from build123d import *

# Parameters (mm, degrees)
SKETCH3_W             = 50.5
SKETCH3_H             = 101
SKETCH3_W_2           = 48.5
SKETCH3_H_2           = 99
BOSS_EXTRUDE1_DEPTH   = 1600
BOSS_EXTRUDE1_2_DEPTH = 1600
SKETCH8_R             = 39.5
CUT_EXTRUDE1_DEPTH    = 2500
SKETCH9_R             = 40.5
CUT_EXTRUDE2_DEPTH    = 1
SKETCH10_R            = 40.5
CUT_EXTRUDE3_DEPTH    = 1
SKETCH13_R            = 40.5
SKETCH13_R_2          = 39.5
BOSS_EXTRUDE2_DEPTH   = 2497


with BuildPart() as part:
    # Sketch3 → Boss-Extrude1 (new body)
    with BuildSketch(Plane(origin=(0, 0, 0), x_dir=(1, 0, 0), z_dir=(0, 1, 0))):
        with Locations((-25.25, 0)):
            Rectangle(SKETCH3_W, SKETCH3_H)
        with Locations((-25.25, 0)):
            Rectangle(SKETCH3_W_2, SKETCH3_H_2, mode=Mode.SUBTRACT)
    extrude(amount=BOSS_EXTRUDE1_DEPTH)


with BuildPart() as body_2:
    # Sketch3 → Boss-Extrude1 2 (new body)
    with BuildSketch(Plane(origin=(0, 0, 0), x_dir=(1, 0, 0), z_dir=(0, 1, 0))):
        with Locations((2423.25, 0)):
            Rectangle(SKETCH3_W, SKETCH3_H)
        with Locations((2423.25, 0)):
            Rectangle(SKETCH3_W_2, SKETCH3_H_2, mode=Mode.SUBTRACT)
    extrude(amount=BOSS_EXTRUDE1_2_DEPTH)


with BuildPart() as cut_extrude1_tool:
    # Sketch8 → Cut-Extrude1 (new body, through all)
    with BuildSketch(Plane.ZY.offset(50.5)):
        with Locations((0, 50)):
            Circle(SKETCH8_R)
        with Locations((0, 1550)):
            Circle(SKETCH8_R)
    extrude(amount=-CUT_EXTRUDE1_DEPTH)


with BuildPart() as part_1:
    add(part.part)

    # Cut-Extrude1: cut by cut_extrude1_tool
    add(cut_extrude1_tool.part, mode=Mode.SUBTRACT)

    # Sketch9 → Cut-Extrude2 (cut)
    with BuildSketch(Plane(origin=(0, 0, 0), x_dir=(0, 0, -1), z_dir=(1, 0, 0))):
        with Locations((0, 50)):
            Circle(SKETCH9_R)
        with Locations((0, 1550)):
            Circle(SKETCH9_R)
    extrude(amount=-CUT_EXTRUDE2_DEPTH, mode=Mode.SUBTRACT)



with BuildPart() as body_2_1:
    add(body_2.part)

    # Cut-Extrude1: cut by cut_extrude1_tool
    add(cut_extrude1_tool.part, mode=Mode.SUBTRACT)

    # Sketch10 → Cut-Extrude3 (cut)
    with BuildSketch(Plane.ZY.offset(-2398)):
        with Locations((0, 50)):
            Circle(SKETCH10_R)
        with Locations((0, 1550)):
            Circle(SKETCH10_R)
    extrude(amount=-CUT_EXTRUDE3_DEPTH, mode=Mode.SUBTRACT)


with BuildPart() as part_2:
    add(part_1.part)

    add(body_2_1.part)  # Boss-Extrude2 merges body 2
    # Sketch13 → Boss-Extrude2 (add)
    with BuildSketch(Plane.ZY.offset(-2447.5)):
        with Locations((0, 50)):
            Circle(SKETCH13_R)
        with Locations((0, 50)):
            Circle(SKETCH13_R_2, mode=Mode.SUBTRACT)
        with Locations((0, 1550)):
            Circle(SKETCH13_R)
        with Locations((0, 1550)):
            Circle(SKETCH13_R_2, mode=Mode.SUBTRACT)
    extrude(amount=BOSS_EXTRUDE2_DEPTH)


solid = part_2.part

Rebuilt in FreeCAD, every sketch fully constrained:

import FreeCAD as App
import Part
import Sketcher

V = App.Vector


def add_polygon(sketch, points):
    """Adds a closed chain of lines whose ends are joined by coincident constraints."""
    first, n = sketch.GeometryCount, len(points)
    for a, b in zip(points, points[1:] + points[:1]):
        sketch.addGeometry(Part.LineSegment(App.Vector(*a, 0), App.Vector(*b, 0)), False)
    for i in range(n):
        sketch.addConstraint(Sketcher.Constraint("Coincident", first + i, 2, first + (i + 1) % n, 1))

doc = App.newDocument("Part")
params = doc.addObject("Spreadsheet::Sheet", "Params")
for row, (alias, value) in enumerate([
    ("sketch1_height", "101 mm"),
    ("sketch1_height2", "99 mm"),
    ("sketch1_width", "50.5 mm"),
    ("sketch1_width2", "48.5 mm"),
    ("pad1_length", "1600 mm"),
    ("sketch2_height", "101 mm"),
    ("sketch2_height2", "99 mm"),
    ("sketch2_width", "50.5 mm"),
    ("sketch2_width2", "48.5 mm"),
    ("pad2_length", "1600 mm"),
    ("sketch3_diameter", "79 mm"),
    ("pad3_length", "2500 mm"),
    ("sketch4_diameter", "81 mm"),
    ("pocket1_length", "1 mm"),
    ("sketch5_diameter", "81 mm"),
    ("pocket2_length", "1 mm"),
    ("sketch6_diameter", "81 mm"),
    ("sketch6_diameter2", "79 mm"),
    ("pad4_length", "2497 mm"),
], start=1):
    params.set(f"A{row}", alias)
    params.set(f"B{row}", "=" + value)
    params.setAlias(f"B{row}", alias)

body = doc.addObject("PartDesign::Body", "Body")

sketch1 = doc.addObject("Sketcher::SketchObject", "Sketch")
body.addObject(sketch1)
sketch1.AttachmentSupport = (doc.XZ_Plane, [""])
sketch1.MapMode = "FlatFace"
add_polygon(sketch1, [(-50, -50), (-50, 50), (0, 50), (0, -50)])
add_polygon(sketch1, [(-1, 50), (-50, 50), (-50, -50), (-1, -50)])
sketch1.addConstraint(Sketcher.Constraint("Vertical", 0))
sketch1.addConstraint(Sketcher.Constraint("Horizontal", 1))
sketch1.addConstraint(Sketcher.Constraint("Vertical", 2))
sketch1.addConstraint(Sketcher.Constraint("Horizontal", 3))
sketch1.addConstraint(Sketcher.Constraint("Horizontal", 4))
sketch1.addConstraint(Sketcher.Constraint("Vertical", 5))
sketch1.addConstraint(Sketcher.Constraint("Horizontal", 6))
sketch1.addConstraint(Sketcher.Constraint("Vertical", 7))
sketch1.addConstraint(Sketcher.Constraint("Symmetric", 1, 2, 2, 2, -1, 1))
sketch1.addConstraint(Sketcher.Constraint("DistanceY", 0, 1, 0, 2, 101.0))
sketch1.addConstraint(Sketcher.Constraint("DistanceY", 5, 2, 5, 1, 99.0))
sketch1.addConstraint(Sketcher.Constraint("DistanceX", 1, 1, 1, 2, 50.5))
sketch1.addConstraint(Sketcher.Constraint("DistanceX", 4, 2, 4, 1, 48.5))
sketch1.addConstraint(Sketcher.Constraint("DistanceX", 6, 2, -1, 1, 1.0))
sketch1.addConstraint(Sketcher.Constraint("DistanceY", 4, 2, 0, 2, 1.0))
sketch1.setExpression("Constraints[17]", "Params.sketch1_height")
sketch1.setExpression("Constraints[18]", "Params.sketch1_height2")
sketch1.setExpression("Constraints[19]", "Params.sketch1_width")
sketch1.setExpression("Constraints[20]", "Params.sketch1_width2")
pad1 = doc.addObject("PartDesign::Pad", "Pad")
body.addObject(pad1)
pad1.Profile = sketch1
pad1.setExpression("Length", "Params.pad1_length")
pad1.Reversed = True
body2 = doc.addObject("PartDesign::Body", "Body001")

sketch2 = doc.addObject("Sketcher::SketchObject", "Sketch001")
body2.addObject(sketch2)
sketch2.AttachmentSupport = (doc.getObject("XZ_Plane001"), [""])
sketch2.MapMode = "FlatFace"
add_polygon(sketch2, [(2398, -50), (2398, 50), (2448, 50), (2448, -50)])
add_polygon(sketch2, [(2448, 50), (2399, 50), (2399, -50), (2448, -50)])
sketch2.addConstraint(Sketcher.Constraint("Vertical", 0))
sketch2.addConstraint(Sketcher.Constraint("Horizontal", 1))
sketch2.addConstraint(Sketcher.Constraint("Vertical", 2))
sketch2.addConstraint(Sketcher.Constraint("Horizontal", 3))
sketch2.addConstraint(Sketcher.Constraint("Horizontal", 4))
sketch2.addConstraint(Sketcher.Constraint("Vertical", 5))
sketch2.addConstraint(Sketcher.Constraint("Horizontal", 6))
sketch2.addConstraint(Sketcher.Constraint("Vertical", 7))
sketch2.addConstraint(Sketcher.Constraint("DistanceY", 0, 1, 0, 2, 101.0))
sketch2.addConstraint(Sketcher.Constraint("DistanceY", 5, 2, 5, 1, 99.0))
sketch2.addConstraint(Sketcher.Constraint("DistanceX", 1, 1, 1, 2, 50.5))
sketch2.addConstraint(Sketcher.Constraint("DistanceX", 4, 2, 4, 1, 48.5))
sketch2.addConstraint(Sketcher.Constraint("DistanceX", -1, 1, 0, 2, 2398.0))
sketch2.addConstraint(Sketcher.Constraint("DistanceX", -1, 1, 4, 2, 2399.0))
sketch2.addConstraint(Sketcher.Constraint("DistanceY", 4, 2, 0, 2, 1.0))
sketch2.addConstraint(Sketcher.Constraint("DistanceY", -1, 1, 0, 2, 50.5))
sketch2.setExpression("Constraints[16]", "Params.sketch2_height")
sketch2.setExpression("Constraints[17]", "Params.sketch2_height2")
sketch2.setExpression("Constraints[18]", "Params.sketch2_width")
sketch2.setExpression("Constraints[19]", "Params.sketch2_width2")
pad2 = doc.addObject("PartDesign::Pad", "Pad001")
body2.addObject(pad2)
pad2.Profile = sketch2
pad2.setExpression("Length", "Params.pad2_length")
pad2.Reversed = True
body3 = doc.addObject("PartDesign::Body", "Body002")
body3.AllowCompound = True

sketch3 = doc.addObject("Sketcher::SketchObject", "Sketch002")
body3.addObject(sketch3)
sketch3.AttachmentSupport = (doc.getObject("YZ_Plane002"), [""])
sketch3.MapMode = "FlatFace"
sketch3.AttachmentOffset = App.Placement(V(0, 0, -50.5), App.Rotation())
sketch3.addGeometry(Part.Circle(V(50, 0, 0), V(0, 0, 1), 40), False)
sketch3.addGeometry(Part.Circle(V(1550, 0, 0), V(0, 0, 1), 40), False)
sketch3.addConstraint(Sketcher.Constraint("Equal", 0, 1))
sketch3.addConstraint(Sketcher.Constraint("PointOnObject", 0, 3, -1))
sketch3.addConstraint(Sketcher.Constraint("PointOnObject", 1, 3, -1))
sketch3.addConstraint(Sketcher.Constraint("Diameter", 0, 79.0))
sketch3.addConstraint(Sketcher.Constraint("DistanceX", -1, 1, 0, 3, 50.0))
sketch3.addConstraint(Sketcher.Constraint("DistanceX", -1, 1, 1, 3, 1550.0))
sketch3.setExpression("Constraints[3]", "Params.sketch3_diameter")
pad3 = doc.addObject("PartDesign::Pad", "Pad002")
body3.addObject(pad3)
pad3.Profile = sketch3
pad3.setExpression("Length", "Params.pad3_length")
doc.recompute()

body4 = doc.addObject("PartDesign::Body", "Body003")
body4.BaseFeature = body3
boolean = doc.addObject("PartDesign::Boolean", "Boolean")
body.addObject(boolean)
boolean.Type = "Cut"
boolean.addObjects([body4])
doc.recompute()

sketch4 = doc.addObject("Sketcher::SketchObject", "Sketch003")
body.addObject(sketch4)
sketch4.AttachmentSupport = (doc.YZ_Plane, [""])
sketch4.MapMode = "FlatFace"
sketch4.addGeometry(Part.Circle(V(50, 0, 0), V(0, 0, 1), 40), False)
sketch4.addGeometry(Part.Circle(V(1550, 0, 0), V(0, 0, 1), 40), False)
sketch4.addConstraint(Sketcher.Constraint("Equal", 0, 1))
sketch4.addConstraint(Sketcher.Constraint("PointOnObject", 0, 3, -1))
sketch4.addConstraint(Sketcher.Constraint("PointOnObject", 1, 3, -1))
sketch4.addConstraint(Sketcher.Constraint("Diameter", 0, 81.0))
sketch4.addConstraint(Sketcher.Constraint("DistanceX", -1, 1, 0, 3, 50.0))
sketch4.addConstraint(Sketcher.Constraint("DistanceX", -1, 1, 1, 3, 1550.0))
sketch4.setExpression("Constraints[3]", "Params.sketch4_diameter")
pocket1 = doc.addObject("PartDesign::Pocket", "Pocket")
body.addObject(pocket1)
pocket1.Profile = sketch4
pocket1.setExpression("Length", "Params.pocket1_length")
doc.recompute()

boolean2 = doc.addObject("PartDesign::Boolean", "Boolean001")
body2.addObject(boolean2)
boolean2.Type = "Cut"
boolean2.addObjects([body3])

sketch5 = doc.addObject("Sketcher::SketchObject", "Sketch004")
body2.addObject(sketch5)
sketch5.AttachmentSupport = (doc.getObject("YZ_Plane001"), [""])
sketch5.MapMode = "FlatFace"
sketch5.AttachmentOffset = App.Placement(V(0, 0, 2398), App.Rotation())
sketch5.addGeometry(Part.Circle(V(50, 0, 0), V(0, 0, 1), 40), False)
sketch5.addGeometry(Part.Circle(V(1550, 0, 0), V(0, 0, 1), 40), False)
sketch5.addConstraint(Sketcher.Constraint("Equal", 0, 1))
sketch5.addConstraint(Sketcher.Constraint("PointOnObject", 0, 3, -1))
sketch5.addConstraint(Sketcher.Constraint("PointOnObject", 1, 3, -1))
sketch5.addConstraint(Sketcher.Constraint("Diameter", 0, 81.0))
sketch5.addConstraint(Sketcher.Constraint("DistanceX", -1, 1, 0, 3, 50.0))
sketch5.addConstraint(Sketcher.Constraint("DistanceX", -1, 1, 1, 3, 1550.0))
sketch5.setExpression("Constraints[3]", "Params.sketch5_diameter")
pocket2 = doc.addObject("PartDesign::Pocket", "Pocket001")
body2.addObject(pocket2)
pocket2.Profile = sketch5
pocket2.setExpression("Length", "Params.pocket2_length")
pocket2.Reversed = True
body.AllowCompound = True
doc.recompute()

boolean3 = doc.addObject("PartDesign::Boolean", "Boolean002")
body.addObject(boolean3)
boolean3.Type = "Fuse"
boolean3.addObjects([body2])

sketch6 = doc.addObject("Sketcher::SketchObject", "Sketch005")
body.addObject(sketch6)
sketch6.AttachmentSupport = (doc.YZ_Plane, [""])
sketch6.MapMode = "FlatFace"
sketch6.AttachmentOffset = App.Placement(V(0, 0, 2447.5), App.Rotation())
sketch6.addGeometry(Part.Circle(V(50, 0, 0), V(0, 0, 1), 40), False)
sketch6.addGeometry(Part.Circle(V(50, 0, 0), V(0, 0, 1), 40), False)
sketch6.addGeometry(Part.Circle(V(1550, 0, 0), V(0, 0, 1), 40), False)
sketch6.addGeometry(Part.Circle(V(1550, 0, 0), V(0, 0, 1), 40), False)
sketch6.addConstraint(Sketcher.Constraint("Coincident", 1, 3, 0, 3))
sketch6.addConstraint(Sketcher.Constraint("Coincident", 3, 3, 2, 3))
sketch6.addConstraint(Sketcher.Constraint("Equal", 0, 2))
sketch6.addConstraint(Sketcher.Constraint("Equal", 1, 3))
sketch6.addConstraint(Sketcher.Constraint("PointOnObject", 0, 3, -1))
sketch6.addConstraint(Sketcher.Constraint("PointOnObject", 2, 3, -1))
sketch6.addConstraint(Sketcher.Constraint("Diameter", 0, 81.0))
sketch6.addConstraint(Sketcher.Constraint("Diameter", 1, 79.0))
sketch6.addConstraint(Sketcher.Constraint("DistanceX", -1, 1, 0, 3, 50.0))
sketch6.addConstraint(Sketcher.Constraint("DistanceX", -1, 1, 2, 3, 1550.0))
sketch6.setExpression("Constraints[6]", "Params.sketch6_diameter")
sketch6.setExpression("Constraints[7]", "Params.sketch6_diameter2")
pad4 = doc.addObject("PartDesign::Pad", "Pad003")
body.addObject(pad4)
pad4.Profile = sketch6
pad4.setExpression("Length", "Params.pad4_length")
pad4.Reversed = True

doc.recompute()
